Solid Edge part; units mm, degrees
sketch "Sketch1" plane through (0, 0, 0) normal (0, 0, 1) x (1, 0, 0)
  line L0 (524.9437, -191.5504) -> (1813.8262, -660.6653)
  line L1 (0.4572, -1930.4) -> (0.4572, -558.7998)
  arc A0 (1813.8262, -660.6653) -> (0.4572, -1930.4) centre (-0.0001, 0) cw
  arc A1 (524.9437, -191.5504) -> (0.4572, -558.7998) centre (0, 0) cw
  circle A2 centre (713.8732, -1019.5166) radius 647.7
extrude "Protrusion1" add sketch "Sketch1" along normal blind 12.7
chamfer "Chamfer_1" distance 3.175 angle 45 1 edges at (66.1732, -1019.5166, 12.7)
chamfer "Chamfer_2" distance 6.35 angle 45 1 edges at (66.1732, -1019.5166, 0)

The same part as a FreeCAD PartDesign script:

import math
import FreeCAD as App
import Part
import Sketcher
Q = App.Units.Quantity


def edges_at(feature, points):
    """Names of the edges that pass closest to the given points."""
    edges = feature.Shape.Edges
    near = lambda p: min(range(len(edges)), key=lambda i: edges[i].distToShape(Part.Vertex(*p))[0])
    return sorted({f"Edge{near(p) + 1}" for p in points})

doc = App.newDocument("Part")
params = doc.addObject("Spreadsheet::Sheet", "Params")
for row, (alias, value) in enumerate([
    ("sketch1_diameter", "51 in"),
    ("sketch1_radius", "22 in"),
    ("sketch1_radius2", "76 in"),
    ("pad1_length", "0.5 in"),
    ("chamfer_size", "0.125 in"),
    ("chamfer2_size", "0.25 in"),
], start=1):
    params.set(f"A{row}", alias)
    params.set(f"B{row}", "=" + value)
    params.setAlias(f"B{row}", alias)

body = doc.addObject("PartDesign::Body", "Body")

# Sketch on XY plane
sketch1 = body.newObject("Sketcher::SketchObject", "Sketch")
sketch1.AttachmentSupport = (doc.getObject("XY_Plane"), [""])
sketch1.MapMode = "FlatFace"
sketch1.addGeometry([
    Part.LineSegment(App.Vector(1813.8262, -660.6653, 0), App.Vector(524.9437, -191.5504, 0)),  # 0
    Part.ArcOfCircle(Part.Circle(App.Vector(0, 0, 0), App.Vector(0, 0, 1), 558.800003), math.radians(-89.953122), math.radians(-20.046876)),  # 1
    Part.LineSegment(App.Vector(0.4572, -558.7998, 0), App.Vector(0.4572, -1930.4, 0)),  # 2
    Part.ArcOfCircle(Part.Circle(App.Vector(-0.0001, 0, 0), App.Vector(0, 0, 1), 1930.400084), math.radians(-89.986427), math.radians(-20.013569)),  # 3
    Part.Circle(App.Vector(713.8732, -1019.5166, 0), App.Vector(0, 0, 1), 647.7),  # 4
], False)
sketch1.addConstraint([
    Sketcher.Constraint("Coincident", 0, 2, 1, 2),
    Sketcher.Constraint("Coincident", 1, 1, 2, 1),
    Sketcher.Constraint("Coincident", 2, 2, 3, 1),
    Sketcher.Constraint("Coincident", 3, 2, 0, 1),
    Sketcher.Constraint("Vertical", 2),
    Sketcher.Constraint("Coincident", 1, 3, -1, 1),
    Sketcher.Constraint("Coincident", 3, 3, -1, 1),
    Sketcher.Constraint("Diameter", 4, Q("51 in")),
    Sketcher.Constraint("Radius", 1, Q("22 in")),
    Sketcher.Constraint("Radius", 3, Q("76 in")),
    Sketcher.Constraint("Angle", 0, Q("160 deg")),
    Sketcher.Constraint("DistanceX", -1, 1, 2, 2, Q("0.018 in")),
    Sketcher.Constraint("DistanceY", 4, 3, 0, 2, Q("32.5971 in")),
    Sketcher.Constraint("DistanceX", -1, 1, 4, 3, 713.8732),
    Sketcher.Constraint("DistanceY", 4, 3, -1, 1, 1019.5166),
])
sketch1.setExpression("Constraints[7]", "Params.sketch1_diameter")
sketch1.setExpression("Constraints[8]", "Params.sketch1_radius")
sketch1.setExpression("Constraints[9]", "Params.sketch1_radius2")
pad1 = body.newObject("PartDesign::Pad", "Pad")
pad1.Profile = sketch1
pad1.setExpression("Length", "Params.pad1_length")
doc.recompute()

chamfer = body.newObject("PartDesign::Chamfer", "Chamfer")
chamfer.Base = (pad1, edges_at(pad1, [(66.173, -1019.517, 12.7)]))
chamfer.setExpression("Size", "Params.chamfer_size")
doc.recompute()

chamfer2 = body.newObject("PartDesign::Chamfer", "Chamfer001")
chamfer2.Base = (chamfer, edges_at(chamfer, [(66.173, -1019.517, 0)]))
chamfer2.setExpression("Size", "Params.chamfer2_size")

doc.recompute()
